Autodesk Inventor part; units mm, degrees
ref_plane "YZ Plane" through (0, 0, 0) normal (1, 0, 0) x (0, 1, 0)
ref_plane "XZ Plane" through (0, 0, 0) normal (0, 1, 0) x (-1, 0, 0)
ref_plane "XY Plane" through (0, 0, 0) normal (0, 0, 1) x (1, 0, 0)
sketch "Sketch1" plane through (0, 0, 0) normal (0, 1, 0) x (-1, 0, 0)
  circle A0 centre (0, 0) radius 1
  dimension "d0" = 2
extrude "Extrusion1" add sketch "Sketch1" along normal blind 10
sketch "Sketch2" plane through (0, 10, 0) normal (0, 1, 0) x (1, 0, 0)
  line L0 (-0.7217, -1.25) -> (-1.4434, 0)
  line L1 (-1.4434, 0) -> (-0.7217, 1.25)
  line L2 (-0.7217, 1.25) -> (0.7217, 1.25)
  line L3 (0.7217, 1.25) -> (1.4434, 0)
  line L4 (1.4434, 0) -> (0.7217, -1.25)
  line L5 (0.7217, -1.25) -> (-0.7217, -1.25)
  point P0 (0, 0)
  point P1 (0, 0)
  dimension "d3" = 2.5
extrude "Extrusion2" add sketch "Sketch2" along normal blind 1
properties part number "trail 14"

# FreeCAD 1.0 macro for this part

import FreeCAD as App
import Part
import Sketcher
from FreeCAD import Vector
Q = App.Units.Quantity


def add_polygon(sketch, points):
    """Adds a closed chain of lines whose ends are joined by coincident constraints."""
    first, n = sketch.GeometryCount, len(points)
    for a, b in zip(points, points[1:] + points[:1]):
        sketch.addGeometry(Part.LineSegment(App.Vector(*a, 0), App.Vector(*b, 0)), False)
    for i in range(n):
        sketch.addConstraint(Sketcher.Constraint("Coincident", first + i, 2, first + (i + 1) % n, 1))

doc = App.newDocument("Part")
body = doc.addObject("PartDesign::Body", "Body")

# Sketch on XZ plane
sketch1 = doc.addObject("Sketcher::SketchObject", "Sketch")
body.addObject(sketch1)
sketch1.AttachmentSupport = (doc.XZ_Plane, [""])
sketch1.MapMode = "FlatFace"
sketch1.addGeometry(Part.Circle(Vector(0, 0, 0), Vector(0, 0, 1), 1), False)
sketch1.addConstraint([
    Sketcher.Constraint("Coincident", 0, 3, -1, 1),
    Sketcher.Constraint("Diameter", 0, Q("2 mm")),
])
pad1 = doc.addObject("PartDesign::Pad", "Pad")
body.addObject(pad1)
pad1.Profile = sketch1
pad1.Length = 10
pad1.Reversed = True

# Sketch on XZ plane
sketch2 = doc.addObject("Sketcher::SketchObject", "Sketch001")
body.addObject(sketch2)
sketch2.AttachmentSupport = (doc.XZ_Plane, [""])
sketch2.MapMode = "FlatFace"
sketch2.AttachmentOffset = App.Placement(Vector(0, 0, -10), App.Rotation())
add_polygon(sketch2, [(-1.4, 0), (-0.7, 1.2), (0.7, 1.2), (1.4, 0), (0.7, -1.2), (-0.7, -1.2)])  # lines 0-5
sketch2.addConstraint([
    Sketcher.Constraint("Horizontal", 1),
    Sketcher.Constraint("Horizontal", 4),
    Sketcher.Constraint("Symmetric", 0, 2, 3, 2, -1, 1),
    Sketcher.Constraint("Symmetric", 2, 2, 5, 2, -1, 1),
    Sketcher.Constraint("PointOnObject", 2, 2, -1),
    Sketcher.Constraint("Parallel", 2, 5),
    Sketcher.Constraint("Vertical", 1, 2, 3, 2),
    Sketcher.Constraint("DistanceY", 3, 2, 1, 2, Q("2.5 mm")),
    Sketcher.Constraint("Angle", 0, Q("59.9996 deg")),
    Sketcher.Constraint("DistanceX", 1, 1, 1, 2, Q("1.4434 mm")),
])
pad2 = doc.addObject("PartDesign::Pad", "Pad001")
body.addObject(pad2)
pad2.Profile = sketch2
pad2.Length = 1
pad2.Reversed = True

doc.recompute()
